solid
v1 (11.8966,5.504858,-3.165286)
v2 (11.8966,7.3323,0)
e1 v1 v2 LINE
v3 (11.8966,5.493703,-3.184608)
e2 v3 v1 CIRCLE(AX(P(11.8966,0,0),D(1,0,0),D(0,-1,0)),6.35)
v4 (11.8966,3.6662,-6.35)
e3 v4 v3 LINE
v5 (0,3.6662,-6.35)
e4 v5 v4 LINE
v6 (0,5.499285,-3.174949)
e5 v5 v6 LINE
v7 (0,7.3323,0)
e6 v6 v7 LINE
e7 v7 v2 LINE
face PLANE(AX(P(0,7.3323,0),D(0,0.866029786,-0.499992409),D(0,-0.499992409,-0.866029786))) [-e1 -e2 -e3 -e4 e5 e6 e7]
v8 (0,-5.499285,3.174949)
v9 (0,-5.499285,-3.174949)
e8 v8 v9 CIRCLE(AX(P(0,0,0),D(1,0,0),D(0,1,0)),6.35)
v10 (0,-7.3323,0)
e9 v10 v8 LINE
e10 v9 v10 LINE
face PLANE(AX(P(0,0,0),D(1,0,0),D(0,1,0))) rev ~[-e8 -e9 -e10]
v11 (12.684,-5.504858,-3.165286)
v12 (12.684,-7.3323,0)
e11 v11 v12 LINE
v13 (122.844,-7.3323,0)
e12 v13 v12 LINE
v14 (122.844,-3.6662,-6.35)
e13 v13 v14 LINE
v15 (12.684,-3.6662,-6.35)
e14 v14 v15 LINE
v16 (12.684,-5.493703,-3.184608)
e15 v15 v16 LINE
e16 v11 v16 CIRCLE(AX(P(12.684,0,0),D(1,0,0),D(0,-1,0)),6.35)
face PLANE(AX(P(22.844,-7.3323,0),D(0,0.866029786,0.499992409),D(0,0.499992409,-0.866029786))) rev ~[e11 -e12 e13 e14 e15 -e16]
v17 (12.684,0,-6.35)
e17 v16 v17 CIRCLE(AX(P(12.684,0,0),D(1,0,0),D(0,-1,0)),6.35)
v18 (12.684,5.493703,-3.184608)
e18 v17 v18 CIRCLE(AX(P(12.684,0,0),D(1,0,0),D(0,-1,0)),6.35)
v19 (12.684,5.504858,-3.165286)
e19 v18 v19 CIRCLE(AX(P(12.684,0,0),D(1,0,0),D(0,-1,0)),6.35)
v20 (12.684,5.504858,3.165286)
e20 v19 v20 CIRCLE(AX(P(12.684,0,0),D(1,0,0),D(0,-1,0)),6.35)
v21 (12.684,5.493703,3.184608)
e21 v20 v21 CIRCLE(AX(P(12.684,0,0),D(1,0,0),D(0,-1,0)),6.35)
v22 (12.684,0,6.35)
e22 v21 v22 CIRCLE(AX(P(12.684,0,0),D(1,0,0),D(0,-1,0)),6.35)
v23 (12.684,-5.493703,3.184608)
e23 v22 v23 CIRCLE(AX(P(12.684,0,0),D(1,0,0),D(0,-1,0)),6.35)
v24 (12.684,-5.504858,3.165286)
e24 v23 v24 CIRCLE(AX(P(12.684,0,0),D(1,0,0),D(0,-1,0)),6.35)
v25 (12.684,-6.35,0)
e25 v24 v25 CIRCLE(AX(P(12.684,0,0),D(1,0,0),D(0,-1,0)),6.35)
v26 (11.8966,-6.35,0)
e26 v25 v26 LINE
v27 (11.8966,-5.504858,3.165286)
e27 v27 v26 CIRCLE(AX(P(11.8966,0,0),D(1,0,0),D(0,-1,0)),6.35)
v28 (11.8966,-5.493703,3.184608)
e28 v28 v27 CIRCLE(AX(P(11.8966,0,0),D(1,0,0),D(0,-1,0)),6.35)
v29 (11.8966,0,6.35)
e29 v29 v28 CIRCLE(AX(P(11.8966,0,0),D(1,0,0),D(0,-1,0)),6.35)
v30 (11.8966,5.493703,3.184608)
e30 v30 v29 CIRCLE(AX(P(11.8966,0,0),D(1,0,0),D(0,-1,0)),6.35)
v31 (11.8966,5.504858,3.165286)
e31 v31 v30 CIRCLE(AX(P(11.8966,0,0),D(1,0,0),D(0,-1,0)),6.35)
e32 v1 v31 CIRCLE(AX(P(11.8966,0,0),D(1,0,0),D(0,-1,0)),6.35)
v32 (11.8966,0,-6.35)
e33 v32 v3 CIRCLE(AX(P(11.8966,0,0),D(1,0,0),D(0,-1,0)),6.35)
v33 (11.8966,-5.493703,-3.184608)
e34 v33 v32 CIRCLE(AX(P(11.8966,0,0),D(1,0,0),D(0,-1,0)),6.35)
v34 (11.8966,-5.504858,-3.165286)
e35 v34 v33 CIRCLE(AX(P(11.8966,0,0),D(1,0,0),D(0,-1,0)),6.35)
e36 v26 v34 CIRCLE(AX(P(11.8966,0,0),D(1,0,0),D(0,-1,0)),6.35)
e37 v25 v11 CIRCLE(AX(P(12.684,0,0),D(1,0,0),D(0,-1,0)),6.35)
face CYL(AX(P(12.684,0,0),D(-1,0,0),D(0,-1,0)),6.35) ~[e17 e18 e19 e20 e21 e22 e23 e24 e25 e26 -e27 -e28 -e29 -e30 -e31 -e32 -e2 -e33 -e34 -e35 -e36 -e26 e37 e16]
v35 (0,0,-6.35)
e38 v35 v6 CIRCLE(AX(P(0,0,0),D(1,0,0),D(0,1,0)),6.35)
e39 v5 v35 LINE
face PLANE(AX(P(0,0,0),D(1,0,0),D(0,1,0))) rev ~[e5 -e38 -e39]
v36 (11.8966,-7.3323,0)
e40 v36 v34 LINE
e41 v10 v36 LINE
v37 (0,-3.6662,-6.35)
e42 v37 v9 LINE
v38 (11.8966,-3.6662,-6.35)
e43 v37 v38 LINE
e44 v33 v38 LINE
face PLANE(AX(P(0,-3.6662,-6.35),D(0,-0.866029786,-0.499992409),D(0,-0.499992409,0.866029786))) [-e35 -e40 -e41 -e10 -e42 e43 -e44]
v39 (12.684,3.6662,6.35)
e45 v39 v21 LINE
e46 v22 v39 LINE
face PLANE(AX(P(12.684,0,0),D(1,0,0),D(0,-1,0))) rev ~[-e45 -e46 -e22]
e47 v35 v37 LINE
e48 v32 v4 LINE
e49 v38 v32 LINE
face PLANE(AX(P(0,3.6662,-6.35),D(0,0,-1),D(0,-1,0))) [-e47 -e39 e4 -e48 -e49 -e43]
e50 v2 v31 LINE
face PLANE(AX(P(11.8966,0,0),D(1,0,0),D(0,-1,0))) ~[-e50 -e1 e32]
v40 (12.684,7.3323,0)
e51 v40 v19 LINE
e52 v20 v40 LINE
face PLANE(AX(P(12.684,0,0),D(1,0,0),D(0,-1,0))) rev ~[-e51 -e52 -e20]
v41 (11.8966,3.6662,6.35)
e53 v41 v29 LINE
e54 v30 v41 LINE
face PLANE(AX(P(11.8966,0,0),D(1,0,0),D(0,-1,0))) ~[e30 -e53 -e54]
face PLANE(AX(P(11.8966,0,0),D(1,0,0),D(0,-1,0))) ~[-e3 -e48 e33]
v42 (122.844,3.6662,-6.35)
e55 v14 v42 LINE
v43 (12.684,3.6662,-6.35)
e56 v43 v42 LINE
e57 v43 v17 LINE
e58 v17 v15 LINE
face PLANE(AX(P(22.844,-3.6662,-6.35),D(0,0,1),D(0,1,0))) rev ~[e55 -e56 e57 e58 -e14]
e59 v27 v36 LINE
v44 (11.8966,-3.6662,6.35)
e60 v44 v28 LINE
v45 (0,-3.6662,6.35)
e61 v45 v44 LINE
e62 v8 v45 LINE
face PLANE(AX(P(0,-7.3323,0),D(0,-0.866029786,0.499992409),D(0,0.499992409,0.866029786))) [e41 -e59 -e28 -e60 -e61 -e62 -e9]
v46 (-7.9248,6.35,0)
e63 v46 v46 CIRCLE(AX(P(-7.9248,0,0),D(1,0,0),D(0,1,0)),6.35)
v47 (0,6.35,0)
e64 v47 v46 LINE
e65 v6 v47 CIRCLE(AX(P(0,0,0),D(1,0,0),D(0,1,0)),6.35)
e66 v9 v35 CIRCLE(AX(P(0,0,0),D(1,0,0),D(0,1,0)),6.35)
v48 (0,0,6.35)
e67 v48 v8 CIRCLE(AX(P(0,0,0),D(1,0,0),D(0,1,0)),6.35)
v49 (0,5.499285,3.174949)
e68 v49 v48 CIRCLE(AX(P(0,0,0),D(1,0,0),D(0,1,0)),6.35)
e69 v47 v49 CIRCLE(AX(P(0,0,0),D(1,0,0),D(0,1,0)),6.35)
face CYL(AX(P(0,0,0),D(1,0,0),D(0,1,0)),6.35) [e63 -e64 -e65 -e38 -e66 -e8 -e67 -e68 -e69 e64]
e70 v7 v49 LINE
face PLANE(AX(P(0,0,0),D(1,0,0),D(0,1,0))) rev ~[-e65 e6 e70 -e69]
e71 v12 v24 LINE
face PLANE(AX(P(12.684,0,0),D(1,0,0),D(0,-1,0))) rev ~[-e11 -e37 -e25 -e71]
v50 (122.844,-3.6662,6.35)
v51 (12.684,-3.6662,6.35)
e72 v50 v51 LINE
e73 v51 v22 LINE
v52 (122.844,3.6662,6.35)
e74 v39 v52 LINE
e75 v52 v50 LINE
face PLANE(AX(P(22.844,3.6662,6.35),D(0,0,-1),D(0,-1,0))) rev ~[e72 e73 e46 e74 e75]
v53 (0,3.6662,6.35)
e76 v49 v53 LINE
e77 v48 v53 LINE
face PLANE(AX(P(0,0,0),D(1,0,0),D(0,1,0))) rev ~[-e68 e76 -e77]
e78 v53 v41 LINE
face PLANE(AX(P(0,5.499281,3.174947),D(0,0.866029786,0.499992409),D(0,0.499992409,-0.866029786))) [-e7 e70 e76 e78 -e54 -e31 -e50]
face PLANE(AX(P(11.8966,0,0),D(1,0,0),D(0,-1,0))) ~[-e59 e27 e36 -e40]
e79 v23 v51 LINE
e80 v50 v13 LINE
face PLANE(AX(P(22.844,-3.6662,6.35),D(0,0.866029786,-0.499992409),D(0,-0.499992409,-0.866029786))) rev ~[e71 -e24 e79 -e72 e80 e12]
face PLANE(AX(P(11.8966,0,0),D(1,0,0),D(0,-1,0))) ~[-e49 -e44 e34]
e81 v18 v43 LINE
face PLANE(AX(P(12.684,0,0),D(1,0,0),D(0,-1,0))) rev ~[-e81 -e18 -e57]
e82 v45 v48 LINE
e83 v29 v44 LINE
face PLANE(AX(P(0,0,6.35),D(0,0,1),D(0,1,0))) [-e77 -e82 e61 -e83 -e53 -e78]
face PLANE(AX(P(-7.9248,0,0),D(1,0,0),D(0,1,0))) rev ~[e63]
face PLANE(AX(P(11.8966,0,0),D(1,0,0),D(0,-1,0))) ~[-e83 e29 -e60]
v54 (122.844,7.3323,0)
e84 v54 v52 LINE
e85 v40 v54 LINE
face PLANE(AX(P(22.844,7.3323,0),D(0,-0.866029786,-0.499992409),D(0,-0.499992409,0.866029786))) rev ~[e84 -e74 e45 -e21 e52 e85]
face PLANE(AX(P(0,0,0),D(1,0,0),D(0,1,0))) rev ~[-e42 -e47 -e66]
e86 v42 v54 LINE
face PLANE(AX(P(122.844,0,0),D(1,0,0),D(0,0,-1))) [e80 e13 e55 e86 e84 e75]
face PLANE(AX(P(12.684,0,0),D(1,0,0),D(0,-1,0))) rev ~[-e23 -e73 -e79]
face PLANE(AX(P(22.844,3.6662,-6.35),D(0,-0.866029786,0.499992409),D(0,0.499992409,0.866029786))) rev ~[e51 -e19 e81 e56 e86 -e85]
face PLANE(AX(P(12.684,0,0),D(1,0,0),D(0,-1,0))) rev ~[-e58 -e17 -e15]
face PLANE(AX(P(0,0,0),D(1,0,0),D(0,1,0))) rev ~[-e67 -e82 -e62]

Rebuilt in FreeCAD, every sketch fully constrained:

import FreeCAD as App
import Part
import Sketcher
Q = App.Units.Quantity


def add_polygon(sketch, points):
    """Adds a closed chain of lines whose ends are joined by coincident constraints."""
    first, n = sketch.GeometryCount, len(points)
    for a, b in zip(points, points[1:] + points[:1]):
        sketch.addGeometry(Part.LineSegment(App.Vector(*a, 0), App.Vector(*b, 0)), False)
    for i in range(n):
        sketch.addConstraint(Sketcher.Constraint("Coincident", first + i, 2, first + (i + 1) % n, 1))

doc = App.newDocument("Part")
params = doc.addObject("Spreadsheet::Sheet", "Params")
for row, (alias, value) in enumerate([
    ("pad1_length", "22.844 mm"),
    ("sketch2_diameter", "0.5 in"),
    ("pad2_length", "0.312 in"),
    ("sketch3_width", "0.031 in"),
    ("groove_angle", "360 deg"),
    ("pad3_length", "3.9370079 in"),
], start=1):
    params.set(f"A{row}", alias)
    params.set(f"B{row}", "=" + value)
    params.setAlias(f"B{row}", alias)

body = doc.addObject("PartDesign::Body", "Body")

# Sketch on YZ plane
sketch1 = body.newObject("Sketcher::SketchObject", "Sketch")
sketch1.AttachmentSupport = (doc.getObject("YZ_Plane"), [""])
sketch1.MapMode = "FlatFace"
add_polygon(sketch1, [(7, 0), (4, 6), (-4, 6), (-7, 0), (-4, -6), (4, -6)])  # lines 0-5
sketch1.addConstraint([
    Sketcher.Constraint("Horizontal", 1),
    Sketcher.Constraint("Horizontal", 4),
    Sketcher.Constraint("Symmetric", 0, 2, 3, 2, -1, 1),
    Sketcher.Constraint("Symmetric", 2, 2, 5, 2, -1, 1),
    Sketcher.Constraint("PointOnObject", 2, 2, -1),
    Sketcher.Constraint("Parallel", 2, 5),
    Sketcher.Constraint("Vertical", 1, 2, 3, 2),
    Sketcher.Constraint("DistanceY", 3, 2, 1, 2, Q("0.5 in")),
    Sketcher.Constraint("Angle", 0, Q("119.9995 deg")),
    Sketcher.Constraint("DistanceX", 2, 2, 0, 2, Q("0.433 in")),
])
pad1 = body.newObject("PartDesign::Pad", "Pad")
pad1.Profile = sketch1
pad1.setExpression("Length", "Params.pad1_length")

# Sketch on YZ plane
sketch2 = body.newObject("Sketcher::SketchObject", "Sketch001")
sketch2.AttachmentSupport = (doc.getObject("YZ_Plane"), [""])
sketch2.MapMode = "FlatFace"
sketch2.addGeometry(Part.Circle(App.Vector(0, 0, 0), App.Vector(0, 0, 1), 6), False)
sketch2.addConstraint([
    Sketcher.Constraint("Coincident", 0, 3, -1, 1),
    Sketcher.Constraint("Diameter", 0, Q("0.5 in")),
])
sketch2.setExpression("Constraints[1]", "Params.sketch2_diameter")
pad2 = body.newObject("PartDesign::Pad", "Pad001")
pad2.Profile = sketch2
pad2.setExpression("Length", "Params.pad2_length")
pad2.Reversed = True

# Sketch on XY plane
sketch3 = body.newObject("Sketcher::SketchObject", "Sketch002")
sketch3.AttachmentSupport = (doc.getObject("XY_Plane"), [""])
sketch3.MapMode = "FlatFace"
add_polygon(sketch3, [(12.7, -7.3), (11.9, -7.3), (11.9, -6.3), (12.7, -6.3)])  # lines 0-3
sketch3.addConstraint([
    Sketcher.Constraint("Horizontal", 0),
    Sketcher.Constraint("Vertical", 1),
    Sketcher.Constraint("Horizontal", 2),
    Sketcher.Constraint("Vertical", 3),
    Sketcher.Constraint("DistanceX", 0, 2, 0, 1, Q("0.031 in")),
    Sketcher.Constraint("DistanceY", 1, 2, -1, 1, Q("0.25 in")),
    Sketcher.Constraint("DistanceY", 1, 1, 1, 2, Q("0.9824 mm")),
    Sketcher.Constraint("DistanceX", -1, 1, 0, 2, Q("11.8966 mm")),
])
sketch3.setExpression("Constraints[8]", "Params.sketch3_width")
groove = body.newObject("PartDesign::Groove", "Groove")
groove.Profile = sketch3
groove.ReferenceAxis = (sketch3, ["H_Axis"])
groove.setExpression("Angle", "Params.groove_angle")

# Sketch on YZ plane
sketch4 = body.newObject("Sketcher::SketchObject", "Sketch003")
sketch4.AttachmentSupport = (doc.getObject("YZ_Plane"), [""])
sketch4.MapMode = "FlatFace"
sketch4.AttachmentOffset = App.Placement(App.Vector(0, 0, 22.844), App.Rotation())
add_polygon(sketch4, [(-4, -6), (4, -6), (7, 0), (4, 6), (-4, 6), (-7, 0)])  # lines 0-5
sketch4.addConstraint([
    Sketcher.Constraint("Horizontal", 0),
    Sketcher.Constraint("Horizontal", 3),
    Sketcher.Constraint("Symmetric", 0, 2, 3, 2, -1, 1),
    Sketcher.Constraint("Symmetric", 1, 2, 4, 2, -1, 1),
    Sketcher.Constraint("PointOnObject", 1, 2, -1),
    Sketcher.Constraint("Parallel", 2, 5),
    Sketcher.Constraint("Vertical", 0, 2, 2, 2),
    Sketcher.Constraint("Angle", 1, Q("60.0005 deg")),
    Sketcher.Constraint("DistanceY", 0, 2, 2, 2, Q("0.5 in")),
    Sketcher.Constraint("DistanceX", 3, 2, 1, 2, Q("0.433 in")),
])
pad3 = body.newObject("PartDesign::Pad", "Pad002")
pad3.Profile = sketch4
pad3.setExpression("Length", "Params.pad3_length")

doc.recompute()
